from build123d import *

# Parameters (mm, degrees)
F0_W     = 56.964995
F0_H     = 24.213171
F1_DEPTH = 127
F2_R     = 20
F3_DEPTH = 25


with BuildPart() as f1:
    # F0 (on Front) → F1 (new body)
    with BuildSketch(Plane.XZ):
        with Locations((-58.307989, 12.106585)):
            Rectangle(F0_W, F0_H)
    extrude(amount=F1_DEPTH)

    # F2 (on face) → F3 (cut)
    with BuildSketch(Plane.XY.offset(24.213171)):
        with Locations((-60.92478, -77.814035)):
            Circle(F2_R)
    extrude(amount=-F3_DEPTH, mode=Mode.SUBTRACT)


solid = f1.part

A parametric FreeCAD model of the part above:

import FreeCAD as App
import Part
import Sketcher

V = App.Vector
Q = App.Units.Quantity


def add_polygon(sketch, points):
    """Adds a closed chain of lines whose ends are joined by coincident constraints."""
    first, n = sketch.GeometryCount, len(points)
    for a, b in zip(points, points[1:] + points[:1]):
        sketch.addGeometry(Part.LineSegment(App.Vector(*a, 0), App.Vector(*b, 0)), False)
    for i in range(n):
        sketch.addConstraint(Sketcher.Constraint("Coincident", first + i, 2, first + (i + 1) % n, 1))

doc = App.newDocument("Part")
body = doc.addObject("PartDesign::Body", "Body")

sketch1 = body.newObject("Sketcher::SketchObject", "Sketch")
sketch1.AttachmentSupport = (doc.getObject("XZ_Plane"), [""])
sketch1.MapMode = "FlatFace"
add_polygon(sketch1, [(-87, 24), (-87, 0), (-30, 0), (-30, 24)])
sketch1.addConstraint([
    Sketcher.Constraint("Vertical", 0),
    Sketcher.Constraint("Horizontal", 1),
    Sketcher.Constraint("Vertical", 2),
    Sketcher.Constraint("Horizontal", 3),
    Sketcher.Constraint("PointOnObject", 0, 2, -1),
    Sketcher.Constraint("DistanceY", 0, 2, 0, 1, Q("24.213171 mm")),
    Sketcher.Constraint("DistanceX", 1, 1, 1, 2, Q("56.964995 mm")),
    Sketcher.Constraint("DistanceX", 1, 2, -1, 1, Q("29.825491 mm")),
])
pad1 = body.newObject("PartDesign::Pad", "Pad")
pad1.Profile = sketch1
pad1.Length = 127

sketch2 = body.newObject("Sketcher::SketchObject", "Sketch001")
sketch2.AttachmentSupport = (doc.getObject("XY_Plane"), [""])
sketch2.MapMode = "FlatFace"
sketch2.AttachmentOffset = App.Placement(V(0, 0, 24.213171), App.Rotation())
sketch2.addGeometry(Part.Circle(V(-61, -78, 0), V(0, 0, 1), 20), False)
sketch2.addConstraint([
    Sketcher.Constraint("Diameter", 0, Q("40 mm")),
    Sketcher.Constraint("DistanceX", 0, 3, -1, 1, Q("60.92478 mm")),
    Sketcher.Constraint("DistanceY", 0, 3, -1, 1, Q("77.814035 mm")),
])
pocket1 = body.newObject("PartDesign::Pocket", "Pocket")
pocket1.Profile = sketch2
pocket1.Length = 25

doc.recompute()
